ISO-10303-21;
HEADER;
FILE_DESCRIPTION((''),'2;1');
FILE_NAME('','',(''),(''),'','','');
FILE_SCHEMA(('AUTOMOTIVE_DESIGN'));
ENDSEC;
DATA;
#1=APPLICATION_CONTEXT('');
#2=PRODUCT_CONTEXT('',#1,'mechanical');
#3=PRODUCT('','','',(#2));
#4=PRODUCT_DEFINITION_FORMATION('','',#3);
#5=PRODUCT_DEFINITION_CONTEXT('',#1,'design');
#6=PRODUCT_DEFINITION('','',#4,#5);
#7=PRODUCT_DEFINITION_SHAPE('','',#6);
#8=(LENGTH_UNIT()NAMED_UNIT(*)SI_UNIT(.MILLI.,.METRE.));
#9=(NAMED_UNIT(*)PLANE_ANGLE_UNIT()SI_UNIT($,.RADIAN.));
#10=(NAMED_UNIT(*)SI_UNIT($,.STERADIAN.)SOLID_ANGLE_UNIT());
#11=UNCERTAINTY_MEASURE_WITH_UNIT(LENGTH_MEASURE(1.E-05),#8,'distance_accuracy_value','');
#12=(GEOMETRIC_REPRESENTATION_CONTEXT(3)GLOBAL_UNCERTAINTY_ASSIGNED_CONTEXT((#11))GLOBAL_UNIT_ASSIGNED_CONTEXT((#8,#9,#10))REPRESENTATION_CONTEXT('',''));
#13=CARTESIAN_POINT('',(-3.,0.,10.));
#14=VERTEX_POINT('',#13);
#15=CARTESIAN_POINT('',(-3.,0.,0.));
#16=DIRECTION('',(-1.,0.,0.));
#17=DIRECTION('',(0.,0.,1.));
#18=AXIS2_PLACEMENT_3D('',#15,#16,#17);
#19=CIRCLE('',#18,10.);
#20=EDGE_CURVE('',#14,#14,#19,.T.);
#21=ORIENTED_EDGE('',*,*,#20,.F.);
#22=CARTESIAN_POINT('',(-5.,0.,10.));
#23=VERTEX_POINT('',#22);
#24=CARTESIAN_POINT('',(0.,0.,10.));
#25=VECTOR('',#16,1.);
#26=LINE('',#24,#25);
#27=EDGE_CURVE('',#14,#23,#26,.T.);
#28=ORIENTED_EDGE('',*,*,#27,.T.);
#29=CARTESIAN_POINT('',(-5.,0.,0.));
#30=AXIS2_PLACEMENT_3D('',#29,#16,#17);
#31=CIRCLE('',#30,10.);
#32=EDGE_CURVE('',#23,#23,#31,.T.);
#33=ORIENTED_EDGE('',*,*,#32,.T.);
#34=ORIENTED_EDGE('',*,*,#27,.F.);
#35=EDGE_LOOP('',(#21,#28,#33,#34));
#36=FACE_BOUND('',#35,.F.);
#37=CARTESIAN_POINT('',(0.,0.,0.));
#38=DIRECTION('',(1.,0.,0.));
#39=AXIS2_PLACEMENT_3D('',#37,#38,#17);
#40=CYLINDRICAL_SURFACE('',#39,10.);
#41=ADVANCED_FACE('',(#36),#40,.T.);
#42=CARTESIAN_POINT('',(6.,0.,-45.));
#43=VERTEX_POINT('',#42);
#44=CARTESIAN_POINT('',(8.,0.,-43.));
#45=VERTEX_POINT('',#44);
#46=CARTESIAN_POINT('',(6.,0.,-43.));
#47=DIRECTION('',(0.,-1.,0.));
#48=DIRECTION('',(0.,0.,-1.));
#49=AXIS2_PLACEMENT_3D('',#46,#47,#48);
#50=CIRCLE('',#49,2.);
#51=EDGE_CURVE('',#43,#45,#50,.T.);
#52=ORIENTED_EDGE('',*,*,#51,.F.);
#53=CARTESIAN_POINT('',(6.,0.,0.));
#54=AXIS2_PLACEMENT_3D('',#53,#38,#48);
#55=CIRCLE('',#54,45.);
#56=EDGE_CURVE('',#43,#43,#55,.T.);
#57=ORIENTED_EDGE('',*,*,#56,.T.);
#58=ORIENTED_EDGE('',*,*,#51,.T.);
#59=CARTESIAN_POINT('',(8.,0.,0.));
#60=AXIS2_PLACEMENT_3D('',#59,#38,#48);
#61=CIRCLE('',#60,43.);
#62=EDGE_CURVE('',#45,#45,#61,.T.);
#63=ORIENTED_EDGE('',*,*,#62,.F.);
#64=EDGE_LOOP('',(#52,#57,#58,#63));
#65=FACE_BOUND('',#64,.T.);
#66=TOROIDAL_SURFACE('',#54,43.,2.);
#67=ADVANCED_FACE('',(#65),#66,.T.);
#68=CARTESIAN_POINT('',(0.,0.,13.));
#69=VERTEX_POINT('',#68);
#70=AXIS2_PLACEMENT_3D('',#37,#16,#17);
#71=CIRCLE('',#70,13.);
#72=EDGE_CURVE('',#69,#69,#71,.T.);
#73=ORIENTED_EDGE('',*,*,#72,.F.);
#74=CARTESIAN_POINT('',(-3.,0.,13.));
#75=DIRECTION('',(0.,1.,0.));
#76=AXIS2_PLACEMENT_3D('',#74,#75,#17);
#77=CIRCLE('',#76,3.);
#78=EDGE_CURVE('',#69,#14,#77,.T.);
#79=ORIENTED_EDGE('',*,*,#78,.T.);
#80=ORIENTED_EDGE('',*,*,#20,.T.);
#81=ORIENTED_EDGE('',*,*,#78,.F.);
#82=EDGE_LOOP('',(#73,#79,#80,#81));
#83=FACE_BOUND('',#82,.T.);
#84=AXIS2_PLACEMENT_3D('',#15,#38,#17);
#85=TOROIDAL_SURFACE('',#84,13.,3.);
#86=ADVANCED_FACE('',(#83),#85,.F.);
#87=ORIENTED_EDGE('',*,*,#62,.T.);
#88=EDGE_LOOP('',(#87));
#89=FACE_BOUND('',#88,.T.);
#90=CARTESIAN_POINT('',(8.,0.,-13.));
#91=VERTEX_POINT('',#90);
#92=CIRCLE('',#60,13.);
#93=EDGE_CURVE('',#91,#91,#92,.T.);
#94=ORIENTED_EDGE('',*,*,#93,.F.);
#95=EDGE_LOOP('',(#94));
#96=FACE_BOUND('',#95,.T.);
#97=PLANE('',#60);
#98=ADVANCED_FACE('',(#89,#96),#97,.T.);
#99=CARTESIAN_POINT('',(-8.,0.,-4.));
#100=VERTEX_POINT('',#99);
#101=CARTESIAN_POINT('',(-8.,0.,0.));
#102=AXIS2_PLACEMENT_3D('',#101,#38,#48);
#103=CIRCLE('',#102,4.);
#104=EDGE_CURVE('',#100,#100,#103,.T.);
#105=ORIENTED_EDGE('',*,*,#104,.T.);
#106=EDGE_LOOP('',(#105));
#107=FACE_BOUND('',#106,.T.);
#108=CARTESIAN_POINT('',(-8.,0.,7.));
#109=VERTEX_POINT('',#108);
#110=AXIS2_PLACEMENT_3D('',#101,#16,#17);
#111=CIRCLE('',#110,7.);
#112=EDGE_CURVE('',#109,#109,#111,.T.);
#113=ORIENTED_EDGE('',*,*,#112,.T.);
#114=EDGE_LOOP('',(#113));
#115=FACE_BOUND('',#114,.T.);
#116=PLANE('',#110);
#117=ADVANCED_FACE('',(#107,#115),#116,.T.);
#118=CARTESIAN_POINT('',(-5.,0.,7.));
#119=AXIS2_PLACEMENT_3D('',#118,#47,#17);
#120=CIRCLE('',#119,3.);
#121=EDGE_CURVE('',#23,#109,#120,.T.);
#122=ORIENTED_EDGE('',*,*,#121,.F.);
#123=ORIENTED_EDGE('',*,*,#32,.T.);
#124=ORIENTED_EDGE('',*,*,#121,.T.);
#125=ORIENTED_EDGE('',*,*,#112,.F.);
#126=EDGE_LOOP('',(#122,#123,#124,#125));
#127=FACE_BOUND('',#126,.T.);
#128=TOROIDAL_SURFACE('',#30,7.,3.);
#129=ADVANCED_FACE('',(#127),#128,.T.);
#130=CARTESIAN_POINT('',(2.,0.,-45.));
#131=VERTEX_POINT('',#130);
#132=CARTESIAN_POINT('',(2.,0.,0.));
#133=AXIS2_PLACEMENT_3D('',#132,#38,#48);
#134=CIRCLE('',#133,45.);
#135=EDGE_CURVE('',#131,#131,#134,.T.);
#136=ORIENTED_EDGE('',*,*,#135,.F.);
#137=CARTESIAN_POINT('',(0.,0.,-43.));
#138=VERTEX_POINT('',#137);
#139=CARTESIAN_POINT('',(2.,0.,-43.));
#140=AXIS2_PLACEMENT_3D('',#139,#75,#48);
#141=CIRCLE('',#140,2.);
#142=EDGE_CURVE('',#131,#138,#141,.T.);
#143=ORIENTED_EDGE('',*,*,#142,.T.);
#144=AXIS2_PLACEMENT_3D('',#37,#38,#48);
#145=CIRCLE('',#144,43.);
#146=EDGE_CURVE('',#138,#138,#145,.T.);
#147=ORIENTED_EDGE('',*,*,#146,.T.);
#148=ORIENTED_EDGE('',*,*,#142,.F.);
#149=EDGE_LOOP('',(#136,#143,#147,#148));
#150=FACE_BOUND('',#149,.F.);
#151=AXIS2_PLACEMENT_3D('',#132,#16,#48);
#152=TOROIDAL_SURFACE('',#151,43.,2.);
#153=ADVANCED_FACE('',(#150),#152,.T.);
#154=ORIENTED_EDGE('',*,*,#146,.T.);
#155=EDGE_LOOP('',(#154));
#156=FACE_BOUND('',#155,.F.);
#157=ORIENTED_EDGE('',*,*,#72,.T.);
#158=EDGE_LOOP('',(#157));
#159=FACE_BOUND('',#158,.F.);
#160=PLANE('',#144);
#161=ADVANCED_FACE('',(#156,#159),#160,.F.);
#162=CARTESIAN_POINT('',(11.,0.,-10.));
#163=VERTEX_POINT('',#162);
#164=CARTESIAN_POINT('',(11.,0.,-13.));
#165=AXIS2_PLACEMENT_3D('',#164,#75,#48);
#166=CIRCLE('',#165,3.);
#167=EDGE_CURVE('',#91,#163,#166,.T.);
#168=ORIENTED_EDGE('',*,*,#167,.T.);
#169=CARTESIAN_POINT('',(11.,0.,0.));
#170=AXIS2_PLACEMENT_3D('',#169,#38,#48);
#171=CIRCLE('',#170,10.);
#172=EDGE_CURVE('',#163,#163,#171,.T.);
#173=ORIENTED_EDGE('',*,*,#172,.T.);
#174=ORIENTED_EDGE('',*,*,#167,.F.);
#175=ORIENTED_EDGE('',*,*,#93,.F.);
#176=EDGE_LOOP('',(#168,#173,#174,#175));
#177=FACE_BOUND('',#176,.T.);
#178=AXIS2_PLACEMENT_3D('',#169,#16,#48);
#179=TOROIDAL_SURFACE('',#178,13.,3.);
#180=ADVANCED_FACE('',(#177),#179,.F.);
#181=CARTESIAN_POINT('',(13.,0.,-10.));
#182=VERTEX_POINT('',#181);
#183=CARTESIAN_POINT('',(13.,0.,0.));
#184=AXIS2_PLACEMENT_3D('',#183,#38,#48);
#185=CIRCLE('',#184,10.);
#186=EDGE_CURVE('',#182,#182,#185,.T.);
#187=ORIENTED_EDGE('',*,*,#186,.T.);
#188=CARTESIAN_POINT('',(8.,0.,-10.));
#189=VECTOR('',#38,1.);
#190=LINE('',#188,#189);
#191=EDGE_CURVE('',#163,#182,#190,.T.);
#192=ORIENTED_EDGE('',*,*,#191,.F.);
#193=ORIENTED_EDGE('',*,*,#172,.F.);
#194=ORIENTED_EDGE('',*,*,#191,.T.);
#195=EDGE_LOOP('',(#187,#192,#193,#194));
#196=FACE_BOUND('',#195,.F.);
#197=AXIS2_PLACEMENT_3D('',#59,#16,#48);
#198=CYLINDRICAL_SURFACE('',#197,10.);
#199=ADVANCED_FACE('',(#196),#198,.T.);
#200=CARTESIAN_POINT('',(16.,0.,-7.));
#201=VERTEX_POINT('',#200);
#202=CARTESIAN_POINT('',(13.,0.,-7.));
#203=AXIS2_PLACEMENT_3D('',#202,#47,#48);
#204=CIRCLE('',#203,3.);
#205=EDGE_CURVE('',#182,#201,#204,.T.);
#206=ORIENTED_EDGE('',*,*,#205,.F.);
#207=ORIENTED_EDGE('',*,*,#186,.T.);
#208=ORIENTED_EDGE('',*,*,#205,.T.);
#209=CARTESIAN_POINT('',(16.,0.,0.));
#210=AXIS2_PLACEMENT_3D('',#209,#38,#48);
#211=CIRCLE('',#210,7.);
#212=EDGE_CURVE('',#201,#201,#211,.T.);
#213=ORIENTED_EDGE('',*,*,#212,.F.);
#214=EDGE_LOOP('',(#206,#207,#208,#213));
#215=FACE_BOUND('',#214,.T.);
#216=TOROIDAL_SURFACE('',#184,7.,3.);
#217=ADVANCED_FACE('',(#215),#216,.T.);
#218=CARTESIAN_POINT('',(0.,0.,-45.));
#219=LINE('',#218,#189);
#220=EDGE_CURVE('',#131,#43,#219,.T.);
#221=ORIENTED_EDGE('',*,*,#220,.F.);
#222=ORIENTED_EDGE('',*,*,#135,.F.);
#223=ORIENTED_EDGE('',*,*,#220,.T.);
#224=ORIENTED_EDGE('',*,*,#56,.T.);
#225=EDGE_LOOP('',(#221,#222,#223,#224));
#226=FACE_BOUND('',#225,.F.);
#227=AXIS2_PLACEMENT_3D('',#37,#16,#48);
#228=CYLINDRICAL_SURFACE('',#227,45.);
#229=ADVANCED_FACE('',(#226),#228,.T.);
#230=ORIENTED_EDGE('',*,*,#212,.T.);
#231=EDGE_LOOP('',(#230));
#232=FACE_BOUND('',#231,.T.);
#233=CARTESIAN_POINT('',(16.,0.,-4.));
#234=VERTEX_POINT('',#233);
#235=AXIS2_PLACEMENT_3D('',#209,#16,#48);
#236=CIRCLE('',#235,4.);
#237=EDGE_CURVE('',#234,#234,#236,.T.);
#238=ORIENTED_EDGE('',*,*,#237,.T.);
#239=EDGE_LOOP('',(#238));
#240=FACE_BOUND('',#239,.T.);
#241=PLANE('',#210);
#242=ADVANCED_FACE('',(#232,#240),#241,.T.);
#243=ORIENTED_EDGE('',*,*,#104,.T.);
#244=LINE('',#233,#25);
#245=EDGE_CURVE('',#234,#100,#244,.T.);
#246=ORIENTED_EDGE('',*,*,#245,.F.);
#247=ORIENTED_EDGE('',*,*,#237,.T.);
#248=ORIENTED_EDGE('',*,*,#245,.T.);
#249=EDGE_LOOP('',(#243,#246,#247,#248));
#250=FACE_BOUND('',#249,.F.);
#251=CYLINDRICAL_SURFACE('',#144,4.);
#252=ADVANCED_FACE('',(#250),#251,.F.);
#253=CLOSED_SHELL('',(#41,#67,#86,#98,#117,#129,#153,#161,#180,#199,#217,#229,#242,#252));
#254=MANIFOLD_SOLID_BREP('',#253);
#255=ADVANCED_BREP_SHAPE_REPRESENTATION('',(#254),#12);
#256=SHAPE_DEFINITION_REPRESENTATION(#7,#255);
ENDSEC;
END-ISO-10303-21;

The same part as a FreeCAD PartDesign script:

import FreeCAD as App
import Part
import Sketcher
Q = App.Units.Quantity


def edges_at(feature, points):
    """Names of the edges that pass closest to the given points."""
    edges = feature.Shape.Edges
    near = lambda p: min(range(len(edges)), key=lambda i: edges[i].distToShape(Part.Vertex(*p))[0])
    return sorted({f"Edge{near(p) + 1}" for p in points})

doc = App.newDocument("Part")
body = doc.addObject("PartDesign::Body", "Body")

# Sketch on YZ plane
sketch1 = body.newObject("Sketcher::SketchObject", "Sketch")
sketch1.AttachmentSupport = (doc.getObject("YZ_Plane"), [""])
sketch1.MapMode = "FlatFace"
sketch1.addGeometry(Part.Circle(App.Vector(0, 0, 0), App.Vector(0, 0, 1), 45), False)
sketch1.addConstraint([
    Sketcher.Constraint("Coincident", 0, 3, -1, 1),
    Sketcher.Constraint("Diameter", 0, Q("90 mm")),
])
pad1 = body.newObject("PartDesign::Pad", "Pad")
pad1.Profile = sketch1
pad1.Length = 8

# Sketch on YZ plane
sketch2 = body.newObject("Sketcher::SketchObject", "Sketch001")
sketch2.AttachmentSupport = (doc.getObject("YZ_Plane"), [""])
sketch2.MapMode = "FlatFace"
sketch2.AttachmentOffset = App.Placement(App.Vector(0, 0, 8), App.Rotation())
sketch2.addGeometry(Part.Circle(App.Vector(0, 0, 0), App.Vector(0, 0, 1), 10), False)
sketch2.addConstraint([
    Sketcher.Constraint("Coincident", 0, 3, -1, 1),
    Sketcher.Constraint("Diameter", 0, Q("20 mm")),
])
pad2 = body.newObject("PartDesign::Pad", "Pad001")
pad2.Profile = sketch2
pad2.Length = 8
doc.recompute()

fillet = body.newObject("PartDesign::Fillet", "Fillet")
fillet.Base = (pad2, edges_at(pad2, [(0, 0, 45), (8, 0, 45)]))
fillet.Radius = 2
doc.recompute()

fillet2 = body.newObject("PartDesign::Fillet", "Fillet001")
fillet2.Base = (fillet, edges_at(fillet, [(8, 0, 10), (16, 0, 10)]))
fillet2.Radius = 3

# Sketch on YZ plane
sketch3 = body.newObject("Sketcher::SketchObject", "Sketch002")
sketch3.AttachmentSupport = (doc.getObject("YZ_Plane"), [""])
sketch3.MapMode = "FlatFace"
sketch3.addGeometry(Part.Circle(App.Vector(0, 0, 0), App.Vector(0, 0, 1), 10), False)
sketch3.addConstraint([
    Sketcher.Constraint("Coincident", 0, 3, -1, 1),
    Sketcher.Constraint("Diameter", 0, Q("20 mm")),
])
pad3 = body.newObject("PartDesign::Pad", "Pad002")
pad3.Profile = sketch3
pad3.Length = 8
pad3.Reversed = True
doc.recompute()

fillet3 = body.newObject("PartDesign::Fillet", "Fillet002")
fillet3.Base = (pad3, edges_at(pad3, [(0, 0, -10), (-8, 0, -10)]))
fillet3.Radius = 3

# Sketch on YZ plane
sketch4 = body.newObject("Sketcher::SketchObject", "Sketch003")
sketch4.AttachmentSupport = (doc.getObject("YZ_Plane"), [""])
sketch4.MapMode = "FlatFace"
sketch4.addGeometry(Part.Circle(App.Vector(0, 0, 0), App.Vector(0, 0, 1), 4), False)
sketch4.addConstraint([
    Sketcher.Constraint("Coincident", 0, 3, -1, 1),
    Sketcher.Constraint("Diameter", 0, Q("8 mm")),
])
pocket1 = body.newObject("PartDesign::Pocket", "Pocket")
pocket1.Profile = sketch4
pocket1.Type = "ThroughAll"
pocket1.Midplane = True

doc.recompute()
